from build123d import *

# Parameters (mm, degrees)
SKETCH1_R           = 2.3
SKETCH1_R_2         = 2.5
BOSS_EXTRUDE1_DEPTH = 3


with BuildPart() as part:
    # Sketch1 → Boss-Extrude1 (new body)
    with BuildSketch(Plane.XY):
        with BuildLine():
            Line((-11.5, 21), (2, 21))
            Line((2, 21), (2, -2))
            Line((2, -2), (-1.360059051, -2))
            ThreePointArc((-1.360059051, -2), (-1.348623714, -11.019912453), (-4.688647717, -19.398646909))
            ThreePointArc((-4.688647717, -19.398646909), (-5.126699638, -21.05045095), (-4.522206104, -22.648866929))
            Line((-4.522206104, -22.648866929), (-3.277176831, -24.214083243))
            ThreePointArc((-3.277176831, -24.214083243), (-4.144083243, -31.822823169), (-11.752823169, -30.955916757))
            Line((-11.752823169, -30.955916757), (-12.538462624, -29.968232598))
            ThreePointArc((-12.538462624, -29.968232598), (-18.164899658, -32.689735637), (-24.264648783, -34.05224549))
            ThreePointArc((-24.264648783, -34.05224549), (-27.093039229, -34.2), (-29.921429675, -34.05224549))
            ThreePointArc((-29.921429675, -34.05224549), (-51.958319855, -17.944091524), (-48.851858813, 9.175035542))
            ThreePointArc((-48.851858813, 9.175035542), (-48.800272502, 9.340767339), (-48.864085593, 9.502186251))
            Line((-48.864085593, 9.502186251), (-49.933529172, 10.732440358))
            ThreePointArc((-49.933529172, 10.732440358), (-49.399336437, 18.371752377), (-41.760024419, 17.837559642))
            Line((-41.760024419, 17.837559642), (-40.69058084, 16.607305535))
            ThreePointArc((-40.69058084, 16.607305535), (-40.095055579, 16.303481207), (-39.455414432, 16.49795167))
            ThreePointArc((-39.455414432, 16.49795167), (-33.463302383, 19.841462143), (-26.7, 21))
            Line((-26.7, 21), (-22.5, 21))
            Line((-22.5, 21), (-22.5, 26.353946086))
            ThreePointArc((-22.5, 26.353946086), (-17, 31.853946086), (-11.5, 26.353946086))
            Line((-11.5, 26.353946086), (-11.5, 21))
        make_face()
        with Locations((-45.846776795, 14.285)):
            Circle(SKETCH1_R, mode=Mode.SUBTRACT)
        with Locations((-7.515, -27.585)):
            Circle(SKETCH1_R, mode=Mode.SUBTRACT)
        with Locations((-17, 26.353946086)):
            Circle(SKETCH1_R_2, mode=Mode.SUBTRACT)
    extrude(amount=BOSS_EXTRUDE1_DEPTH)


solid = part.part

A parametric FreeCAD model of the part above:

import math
import FreeCAD as App
import Part
import Sketcher

V = App.Vector
Q = App.Units.Quantity

doc = App.newDocument("Part")
body = doc.addObject("PartDesign::Body", "Body")

# Sketch on XY plane
sketch1 = body.newObject("Sketcher::SketchObject", "Sketch")
sketch1.AttachmentSupport = (doc.getObject("XY_Plane"), [""])
sketch1.MapMode = "FlatFace"
sketch1.addGeometry(Part.LineSegment(V(2, 21, 0), V(-11.5, 21, 0)), False)
sketch1.addGeometry(Part.LineSegment(V(-11.5, 21, 0), V(-11.5, 26.35, 0)), False)
sketch1.addGeometry(Part.ArcOfCircle(Part.Circle(V(-17, 26.35, 0), V(0, 0, 1), 5.5), math.radians(0), math.radians(180)), False)
sketch1.addGeometry(Part.LineSegment(V(-22.5, 26.35, 0), V(-22.5, 21, 0)), False)
sketch1.addGeometry(Part.LineSegment(V(-22.5, 21, 0), V(-26.7, 21, 0)), False)
sketch1.addGeometry(Part.ArcOfCircle(Part.Circle(V(-26.7, 0.68, 0), V(0, 0, 1), 20.32), math.radians(90), math.radians(129)), False)
sketch1.addGeometry(Part.ArcOfCircle(Part.Circle(V(-40.02, 17.19, 0), V(0, 0, 1), 0.89), math.radians(-139), math.radians(-51)), False)
sketch1.addGeometry(Part.LineSegment(V(-40.69, 16.61, 0), V(-41.76, 17.84, 0)), False)
sketch1.addGeometry(Part.ArcOfCircle(Part.Circle(V(-45.85, 14.29, 0), V(0, 0, 1), 5.42), math.radians(41), math.radians(221)), False)
sketch1.addGeometry(Part.LineSegment(V(-49.93, 10.73, 0), V(-48.86, 9.5, 0)), False)
sketch1.addGeometry(Part.ArcOfCircle(Part.Circle(V(-49.06, 9.33, 0), V(0, 0, 1), 0.26), math.radians(-37), math.radians(41)), False)
sketch1.addGeometry(Part.ArcOfCircle(Part.Circle(V(-27.09, -7.05, 0), V(0, 0, 1), 27.15), math.radians(143), math.radians(264)), False)
sketch1.addGeometry(Part.ArcOfCircle(Part.Circle(V(-27.09, -7.05, 0), V(0, 0, 1), 27.15), math.radians(-95.98), math.radians(-84.02)), False)
sketch1.addGeometry(Part.ArcOfCircle(Part.Circle(V(-27.09, -7.05, 0), V(0, 0, 1), 27.15), math.radians(-84), math.radians(-58)), False)
sketch1.addGeometry(Part.LineSegment(V(-12.54, -29.97, 0), V(-11.75, -30.96, 0)), False)
sketch1.addGeometry(Part.ArcOfCircle(Part.Circle(V(-7.51, -27.59, 0), V(0, 0, 1), 5.41), math.radians(-142), math.radians(38)), False)
sketch1.addGeometry(Part.LineSegment(V(-3.28, -24.21, 0), V(-4.52, -22.65, 0)), False)
sketch1.addGeometry(Part.ArcOfCircle(Part.Circle(V(-2.33, -20.91, 0), V(0, 0, 1), 2.8), math.radians(147), math.radians(218)), False)
sketch1.addGeometry(Part.ArcOfCircle(Part.Circle(V(-24.77, -6.54, 0), V(0, 0, 1), 23.84), math.radians(-33), math.radians(11)), False)
sketch1.addGeometry(Part.LineSegment(V(-1.36, -2, 0), V(2, -2, 0)), False)
sketch1.addGeometry(Part.LineSegment(V(2, -2, 0), V(2, 21, 0)), False)
sketch1.addGeometry(Part.Circle(V(-7.51, -27.59, 0), V(0, 0, 1), 2.3), False)
sketch1.addGeometry(Part.Circle(V(-17, 26.35, 0), V(0, 0, 1), 2.5), False)
sketch1.addGeometry(Part.Circle(V(-45.85, 14.29, 0), V(0, 0, 1), 2.3), False)
sketch1.addConstraint(Sketcher.Constraint("Coincident", 0, 2, 1, 1))
sketch1.addConstraint(Sketcher.Constraint("Tangent", 1, 2, 2, 1))
sketch1.addConstraint(Sketcher.Constraint("Tangent", 2, 2, 3, 1))
sketch1.addConstraint(Sketcher.Constraint("Coincident", 3, 2, 4, 1))
sketch1.addConstraint(Sketcher.Constraint("Tangent", 4, 2, 5, 1))
sketch1.addConstraint(Sketcher.Constraint("Tangent", 5, 2, 6, 2))
sketch1.addConstraint(Sketcher.Constraint("Tangent", 6, 1, 7, 1))
sketch1.addConstraint(Sketcher.Constraint("Tangent", 7, 2, 8, 1))
sketch1.addConstraint(Sketcher.Constraint("Tangent", 8, 2, 9, 1))
sketch1.addConstraint(Sketcher.Constraint("Tangent", 9, 2, 10, 2))
sketch1.addConstraint(Sketcher.Constraint("Tangent", 10, 1, 11, 1))
sketch1.addConstraint(Sketcher.Constraint("Tangent", 11, 2, 12, 1))
sketch1.addConstraint(Sketcher.Constraint("Tangent", 12, 2, 13, 1))
sketch1.addConstraint(Sketcher.Constraint("Coincident", 13, 2, 14, 1))
sketch1.addConstraint(Sketcher.Constraint("Tangent", 14, 2, 15, 1))
sketch1.addConstraint(Sketcher.Constraint("Tangent", 15, 2, 16, 1))
sketch1.addConstraint(Sketcher.Constraint("Tangent", 16, 2, 17, 2))
sketch1.addConstraint(Sketcher.Constraint("Tangent", 17, 1, 18, 1))
sketch1.addConstraint(Sketcher.Constraint("Coincident", 18, 2, 19, 1))
sketch1.addConstraint(Sketcher.Constraint("Coincident", 19, 2, 20, 1))
sketch1.addConstraint(Sketcher.Constraint("Coincident", 20, 2, 0, 1))
sketch1.addConstraint(Sketcher.Constraint("Horizontal", 0))
sketch1.addConstraint(Sketcher.Constraint("Vertical", 1))
sketch1.addConstraint(Sketcher.Constraint("Vertical", 3))
sketch1.addConstraint(Sketcher.Constraint("Horizontal", 4))
sketch1.addConstraint(Sketcher.Constraint("Horizontal", 19))
sketch1.addConstraint(Sketcher.Constraint("Vertical", 20))
sketch1.addConstraint(Sketcher.Constraint("Coincident", 13, 3, 11, 3))
sketch1.addConstraint(Sketcher.Constraint("Coincident", 21, 3, 15, 3))
sketch1.addConstraint(Sketcher.Constraint("Coincident", 22, 3, 2, 3))
sketch1.addConstraint(Sketcher.Constraint("Coincident", 23, 3, 8, 3))
sketch1.addConstraint(Sketcher.Constraint("Equal", 8, 15))
sketch1.addConstraint(Sketcher.Constraint("Equal", 21, 23))
sketch1.addConstraint(Sketcher.Constraint("Parallel", 7, 9))
sketch1.addConstraint(Sketcher.Constraint("Parallel", 14, 16))
sketch1.addConstraint(Sketcher.Constraint("Horizontal", 0, 2, 3, 2))
sketch1.addConstraint(Sketcher.Constraint("Horizontal", 11, 2, 12, 2))
sketch1.addConstraint(Sketcher.Constraint("Equal", 7, 9))
sketch1.addConstraint(Sketcher.Constraint("Diameter", 22, 5.0))
sketch1.addConstraint(Sketcher.Constraint("Diameter", 21, 4.6))
sketch1.addConstraint(Sketcher.Constraint("Radius", 2, 5.5))
sketch1.addConstraint(Sketcher.Constraint("DistanceY", 20, 1, 20, 2, 23.0))
sketch1.addConstraint(Sketcher.Constraint("Angle", 7, Q("131 deg")))
sketch1.addConstraint(Sketcher.Constraint("Distance", 16, 2.0))
sketch1.addConstraint(Sketcher.Constraint("DistanceX", 0, 2, 0, 1, 13.5))
sketch1.addConstraint(Sketcher.Constraint("DistanceX", 4, 2, 4, 1, 4.2))
sketch1.addConstraint(Sketcher.Constraint("DistanceX", 2, 3, -1, 1, 17.0))
sketch1.addConstraint(Sketcher.Constraint("DistanceY", -1, 1, 0, 2, 21.0))
sketch1.addConstraint(Sketcher.Constraint("Angle", 14, Q("-51.5 deg")))
sketch1.addConstraint(Sketcher.Constraint("Radius", 8, 5.415))
sketch1.addConstraint(Sketcher.Constraint("Radius", 18, 23.84326))
sketch1.addConstraint(Sketcher.Constraint("DistanceY", -1, 1, 8, 3, 14.285))
sketch1.addConstraint(Sketcher.Constraint("DistanceX", 15, 3, -1, 1, 7.515))
sketch1.addConstraint(Sketcher.Constraint("DistanceY", 15, 3, -1, 1, 27.585))
sketch1.addConstraint(Sketcher.Constraint("Radius", 5, 20.320643))
sketch1.addConstraint(Sketcher.Constraint("Radius", 6, 0.893483))
sketch1.addConstraint(Sketcher.Constraint("Radius", 10, 0.260895))
sketch1.addConstraint(Sketcher.Constraint("Radius", 11, 27.145107))
sketch1.addConstraint(Sketcher.Constraint("Radius", 17, 2.797503))
sketch1.addConstraint(Sketcher.Constraint("DistanceX", 19, 1, 19, 2, 3.360059))
sketch1.addConstraint(Sketcher.Constraint("Distance", 14, 1.262042))
sketch1.addConstraint(Sketcher.Constraint("DistanceY", 1, 1, 1, 2, 5.353946))
sketch1.addConstraint(Sketcher.Constraint("DistanceX", 6, 3, -1, 1, 40.01626))
sketch1.addConstraint(Sketcher.Constraint("DistanceX", 11, 2, -1, 1, 29.92143))
pad1 = body.newObject("PartDesign::Pad", "Pad")
pad1.Profile = sketch1
pad1.Length = 3

doc.recompute()
